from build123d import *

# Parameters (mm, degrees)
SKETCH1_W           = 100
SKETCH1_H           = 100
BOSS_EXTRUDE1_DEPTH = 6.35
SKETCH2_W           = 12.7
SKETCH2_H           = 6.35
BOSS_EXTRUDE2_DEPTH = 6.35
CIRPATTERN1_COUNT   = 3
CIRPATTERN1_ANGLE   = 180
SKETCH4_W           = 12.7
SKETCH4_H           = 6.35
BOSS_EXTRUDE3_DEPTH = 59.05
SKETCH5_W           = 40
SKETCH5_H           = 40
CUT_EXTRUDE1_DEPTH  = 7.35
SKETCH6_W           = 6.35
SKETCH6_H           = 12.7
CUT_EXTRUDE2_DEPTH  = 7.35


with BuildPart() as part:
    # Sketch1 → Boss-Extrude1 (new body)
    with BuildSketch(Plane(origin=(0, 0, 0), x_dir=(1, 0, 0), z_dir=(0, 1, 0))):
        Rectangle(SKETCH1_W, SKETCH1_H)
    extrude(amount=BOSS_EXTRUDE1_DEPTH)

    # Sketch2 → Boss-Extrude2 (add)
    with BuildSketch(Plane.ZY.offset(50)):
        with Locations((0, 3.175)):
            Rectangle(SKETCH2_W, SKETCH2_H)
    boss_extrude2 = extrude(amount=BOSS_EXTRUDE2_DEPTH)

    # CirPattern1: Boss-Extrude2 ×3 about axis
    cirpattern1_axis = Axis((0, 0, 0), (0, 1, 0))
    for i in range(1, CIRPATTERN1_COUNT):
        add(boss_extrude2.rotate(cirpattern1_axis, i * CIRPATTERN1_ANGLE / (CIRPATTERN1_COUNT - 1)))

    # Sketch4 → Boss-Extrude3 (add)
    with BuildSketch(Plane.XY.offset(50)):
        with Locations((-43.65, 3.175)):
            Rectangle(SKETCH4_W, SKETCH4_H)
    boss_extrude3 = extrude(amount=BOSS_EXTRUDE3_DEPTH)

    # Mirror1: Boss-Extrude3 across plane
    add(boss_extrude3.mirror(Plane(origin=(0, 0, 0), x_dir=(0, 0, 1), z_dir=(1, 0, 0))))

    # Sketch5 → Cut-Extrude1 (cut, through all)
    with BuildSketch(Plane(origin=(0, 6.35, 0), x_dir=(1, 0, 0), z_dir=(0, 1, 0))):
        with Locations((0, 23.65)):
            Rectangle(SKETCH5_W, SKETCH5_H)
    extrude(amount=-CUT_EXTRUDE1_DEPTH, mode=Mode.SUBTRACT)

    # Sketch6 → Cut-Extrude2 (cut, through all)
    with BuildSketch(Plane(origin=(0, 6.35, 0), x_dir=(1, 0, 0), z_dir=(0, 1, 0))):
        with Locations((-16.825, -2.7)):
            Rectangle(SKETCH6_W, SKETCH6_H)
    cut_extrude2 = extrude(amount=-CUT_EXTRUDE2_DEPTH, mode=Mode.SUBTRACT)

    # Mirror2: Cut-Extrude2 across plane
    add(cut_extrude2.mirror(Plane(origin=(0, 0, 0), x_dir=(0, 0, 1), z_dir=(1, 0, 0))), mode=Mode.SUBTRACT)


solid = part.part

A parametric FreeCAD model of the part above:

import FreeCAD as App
import Part
import Sketcher

V = App.Vector

doc = App.newDocument("Part")
body = doc.addObject("PartDesign::Body", "Body")

# Sketch on XZ plane
sketch1 = doc.addObject("Sketcher::SketchObject", "Sketch")
body.addObject(sketch1)
sketch1.AttachmentSupport = (doc.XZ_Plane, [""])
sketch1.MapMode = "FlatFace"
sketch1.addGeometry([
    Part.LineSegment(V(-50, -50, 0), V(-50, 50, 0)),
    Part.LineSegment(V(-50, 50, 0), V(50, 50, 0)),
    Part.LineSegment(V(50, 50, 0), V(50, -50, 0)),
    Part.LineSegment(V(50, -50, 0), V(-50, -50, 0)),
], False)
sketch1.addConstraint([
    Sketcher.Constraint("Coincident", 0, 2, 1, 1),
    Sketcher.Constraint("Coincident", 1, 2, 2, 1),
    Sketcher.Constraint("Coincident", 2, 2, 3, 1),
    Sketcher.Constraint("Coincident", 3, 2, 0, 1),
    Sketcher.Constraint("Vertical", 0),
    Sketcher.Constraint("Horizontal", 1),
    Sketcher.Constraint("Vertical", 2),
    Sketcher.Constraint("Horizontal", 3),
    Sketcher.Constraint("Symmetric", 0, 2, 2, 2, -1, 1),
    Sketcher.Constraint("Equal", 3, 0),
    Sketcher.Constraint("DistanceX", 1, 1, 1, 2, 100.0),
])
pad1 = doc.addObject("PartDesign::Pad", "Pad")
body.addObject(pad1)
pad1.Profile = sketch1
pad1.Length = 6.35
pad1.Reversed = True

# Sketch on YZ plane
sketch2 = doc.addObject("Sketcher::SketchObject", "Sketch001")
body.addObject(sketch2)
sketch2.AttachmentSupport = (doc.YZ_Plane, [""])
sketch2.MapMode = "FlatFace"
sketch2.AttachmentOffset = App.Placement(V(0, 0, -50), App.Rotation())
sketch2.addGeometry([
    Part.LineSegment(V(6.35, -6.35, 0), V(0, -6.35, 0)),
    Part.LineSegment(V(0, -6.35, 0), V(0, 6.35, 0)),
    Part.LineSegment(V(0, 6.35, 0), V(6.35, 6.35, 0)),
    Part.LineSegment(V(6.35, 6.35, 0), V(6.35, -6.35, 0)),
], False)
sketch2.addConstraint([
    Sketcher.Constraint("Coincident", 0, 2, 1, 1),
    Sketcher.Constraint("Coincident", 1, 2, 2, 1),
    Sketcher.Constraint("Coincident", 2, 2, 3, 1),
    Sketcher.Constraint("Coincident", 3, 2, 0, 1),
    Sketcher.Constraint("Horizontal", 0),
    Sketcher.Constraint("Vertical", 1),
    Sketcher.Constraint("Horizontal", 2),
    Sketcher.Constraint("Vertical", 3),
    Sketcher.Constraint("Symmetric", 0, 2, 1, 2, -1, 1),
    Sketcher.Constraint("DistanceY", 1, 1, 1, 2, 12.7),
    Sketcher.Constraint("DistanceX", 0, 2, 0, 1, 6.35),
])
pad2 = doc.addObject("PartDesign::Pad", "Pad001")
body.addObject(pad2)
pad2.Profile = sketch2
pad2.Length = 6.35
pad2.Reversed = True
doc.recompute()

polarpattern = doc.addObject("PartDesign::PolarPattern", "PolarPattern")
body.addObject(polarpattern)
polarpattern.Originals = [pad2]
polarpattern.Axis = (doc.Y_Axis, [""])
polarpattern.Angle = 180
polarpattern.Occurrences = 3
body.Tip = polarpattern

# Sketch on XY plane
sketch3 = doc.addObject("Sketcher::SketchObject", "Sketch002")
body.addObject(sketch3)
sketch3.AttachmentSupport = (doc.XY_Plane, [""])
sketch3.MapMode = "FlatFace"
sketch3.AttachmentOffset = App.Placement(V(0, 0, 50), App.Rotation())
sketch3.addGeometry([
    Part.LineSegment(V(-50, 6.35, 0), V(-50, 0, 0)),
    Part.LineSegment(V(-50, 0, 0), V(-37.3, 0, 0)),
    Part.LineSegment(V(-37.3, 0, 0), V(-37.3, 6.35, 0)),
    Part.LineSegment(V(-37.3, 6.35, 0), V(-50, 6.35, 0)),
], False)
sketch3.addConstraint([
    Sketcher.Constraint("Coincident", 0, 2, 1, 1),
    Sketcher.Constraint("Coincident", 1, 2, 2, 1),
    Sketcher.Constraint("Coincident", 2, 2, 3, 1),
    Sketcher.Constraint("Coincident", 3, 2, 0, 1),
    Sketcher.Constraint("Vertical", 0),
    Sketcher.Constraint("Horizontal", 1),
    Sketcher.Constraint("Vertical", 2),
    Sketcher.Constraint("Horizontal", 3),
    Sketcher.Constraint("PointOnObject", 0, 2, -1),
    Sketcher.Constraint("DistanceX", 1, 1, 1, 2, 12.7),
    Sketcher.Constraint("DistanceX", 0, 2, -1, 1, 50.0),
    Sketcher.Constraint("DistanceY", 0, 2, 0, 1, 6.35),
])
pad3 = doc.addObject("PartDesign::Pad", "Pad002")
body.addObject(pad3)
pad3.Profile = sketch3
pad3.Length = 59.05
doc.recompute()

mirrored = doc.addObject("PartDesign::Mirrored", "Mirrored")
body.addObject(mirrored)
mirrored.Originals = [pad3]
mirrored.MirrorPlane = (doc.YZ_Plane, [""])
body.Tip = mirrored

# Sketch on XZ plane
sketch4 = doc.addObject("Sketcher::SketchObject", "Sketch003")
body.addObject(sketch4)
sketch4.AttachmentSupport = (doc.XZ_Plane, [""])
sketch4.MapMode = "FlatFace"
sketch4.AttachmentOffset = App.Placement(V(0, 0, -6.35), App.Rotation())
sketch4.addGeometry([
    Part.LineSegment(V(-20, -43.65, 0), V(-20, -3.65, 0)),
    Part.LineSegment(V(-20, -3.65, 0), V(20, -3.65, 0)),
    Part.LineSegment(V(20, -3.65, 0), V(20, -43.65, 0)),
    Part.LineSegment(V(20, -43.65, 0), V(-20, -43.65, 0)),
], False)
sketch4.addConstraint([
    Sketcher.Constraint("Coincident", 0, 2, 1, 1),
    Sketcher.Constraint("Coincident", 1, 2, 2, 1),
    Sketcher.Constraint("Coincident", 2, 2, 3, 1),
    Sketcher.Constraint("Coincident", 3, 2, 0, 1),
    Sketcher.Constraint("Vertical", 0),
    Sketcher.Constraint("Horizontal", 1),
    Sketcher.Constraint("Vertical", 2),
    Sketcher.Constraint("Horizontal", 3),
    Sketcher.Constraint("Equal", 3, 0),
    Sketcher.Constraint("DistanceX", 1, 1, 1, 2, 40.0),
    Sketcher.Constraint("DistanceX", 0, 2, -1, 1, 20.0),
    Sketcher.Constraint("DistanceY", 0, 2, -1, 1, 3.65),
])
pocket1 = doc.addObject("PartDesign::Pocket", "Pocket")
body.addObject(pocket1)
pocket1.Profile = sketch4
pocket1.Type = "ThroughAll"
pocket1.Reversed = True

# Sketch on XZ plane
sketch5 = doc.addObject("Sketcher::SketchObject", "Sketch004")
body.addObject(sketch5)
sketch5.AttachmentSupport = (doc.XZ_Plane, [""])
sketch5.MapMode = "FlatFace"
sketch5.AttachmentOffset = App.Placement(V(0, 0, -6.35), App.Rotation())
sketch5.addGeometry([
    Part.LineSegment(V(-20, -3.65, 0), V(-20, 9.05, 0)),
    Part.LineSegment(V(-20, 9.05, 0), V(-13.65, 9.05, 0)),
    Part.LineSegment(V(-13.65, 9.05, 0), V(-13.65, -3.65, 0)),
    Part.LineSegment(V(-13.65, -3.65, 0), V(-20, -3.65, 0)),
], False)
sketch5.addConstraint([
    Sketcher.Constraint("Coincident", 0, 2, 1, 1),
    Sketcher.Constraint("Coincident", 1, 2, 2, 1),
    Sketcher.Constraint("Coincident", 2, 2, 3, 1),
    Sketcher.Constraint("Coincident", 3, 2, 0, 1),
    Sketcher.Constraint("Vertical", 0),
    Sketcher.Constraint("Horizontal", 1),
    Sketcher.Constraint("Vertical", 2),
    Sketcher.Constraint("Horizontal", 3),
    Sketcher.Constraint("DistanceY", 0, 1, 0, 2, 12.7),
    Sketcher.Constraint("DistanceX", 0, 2, -1, 1, 20.0),
    Sketcher.Constraint("DistanceX", 1, 1, 1, 2, 6.35),
    Sketcher.Constraint("DistanceY", -1, 1, 0, 2, 9.05),
])
pocket2 = doc.addObject("PartDesign::Pocket", "Pocket001")
body.addObject(pocket2)
pocket2.Profile = sketch5
pocket2.Type = "ThroughAll"
pocket2.Reversed = True
doc.recompute()

mirrored2 = doc.addObject("PartDesign::Mirrored", "Mirrored001")
body.addObject(mirrored2)
mirrored2.Originals = [pocket2]
mirrored2.MirrorPlane = (doc.YZ_Plane, [""])
body.Tip = mirrored2

doc.recompute()
